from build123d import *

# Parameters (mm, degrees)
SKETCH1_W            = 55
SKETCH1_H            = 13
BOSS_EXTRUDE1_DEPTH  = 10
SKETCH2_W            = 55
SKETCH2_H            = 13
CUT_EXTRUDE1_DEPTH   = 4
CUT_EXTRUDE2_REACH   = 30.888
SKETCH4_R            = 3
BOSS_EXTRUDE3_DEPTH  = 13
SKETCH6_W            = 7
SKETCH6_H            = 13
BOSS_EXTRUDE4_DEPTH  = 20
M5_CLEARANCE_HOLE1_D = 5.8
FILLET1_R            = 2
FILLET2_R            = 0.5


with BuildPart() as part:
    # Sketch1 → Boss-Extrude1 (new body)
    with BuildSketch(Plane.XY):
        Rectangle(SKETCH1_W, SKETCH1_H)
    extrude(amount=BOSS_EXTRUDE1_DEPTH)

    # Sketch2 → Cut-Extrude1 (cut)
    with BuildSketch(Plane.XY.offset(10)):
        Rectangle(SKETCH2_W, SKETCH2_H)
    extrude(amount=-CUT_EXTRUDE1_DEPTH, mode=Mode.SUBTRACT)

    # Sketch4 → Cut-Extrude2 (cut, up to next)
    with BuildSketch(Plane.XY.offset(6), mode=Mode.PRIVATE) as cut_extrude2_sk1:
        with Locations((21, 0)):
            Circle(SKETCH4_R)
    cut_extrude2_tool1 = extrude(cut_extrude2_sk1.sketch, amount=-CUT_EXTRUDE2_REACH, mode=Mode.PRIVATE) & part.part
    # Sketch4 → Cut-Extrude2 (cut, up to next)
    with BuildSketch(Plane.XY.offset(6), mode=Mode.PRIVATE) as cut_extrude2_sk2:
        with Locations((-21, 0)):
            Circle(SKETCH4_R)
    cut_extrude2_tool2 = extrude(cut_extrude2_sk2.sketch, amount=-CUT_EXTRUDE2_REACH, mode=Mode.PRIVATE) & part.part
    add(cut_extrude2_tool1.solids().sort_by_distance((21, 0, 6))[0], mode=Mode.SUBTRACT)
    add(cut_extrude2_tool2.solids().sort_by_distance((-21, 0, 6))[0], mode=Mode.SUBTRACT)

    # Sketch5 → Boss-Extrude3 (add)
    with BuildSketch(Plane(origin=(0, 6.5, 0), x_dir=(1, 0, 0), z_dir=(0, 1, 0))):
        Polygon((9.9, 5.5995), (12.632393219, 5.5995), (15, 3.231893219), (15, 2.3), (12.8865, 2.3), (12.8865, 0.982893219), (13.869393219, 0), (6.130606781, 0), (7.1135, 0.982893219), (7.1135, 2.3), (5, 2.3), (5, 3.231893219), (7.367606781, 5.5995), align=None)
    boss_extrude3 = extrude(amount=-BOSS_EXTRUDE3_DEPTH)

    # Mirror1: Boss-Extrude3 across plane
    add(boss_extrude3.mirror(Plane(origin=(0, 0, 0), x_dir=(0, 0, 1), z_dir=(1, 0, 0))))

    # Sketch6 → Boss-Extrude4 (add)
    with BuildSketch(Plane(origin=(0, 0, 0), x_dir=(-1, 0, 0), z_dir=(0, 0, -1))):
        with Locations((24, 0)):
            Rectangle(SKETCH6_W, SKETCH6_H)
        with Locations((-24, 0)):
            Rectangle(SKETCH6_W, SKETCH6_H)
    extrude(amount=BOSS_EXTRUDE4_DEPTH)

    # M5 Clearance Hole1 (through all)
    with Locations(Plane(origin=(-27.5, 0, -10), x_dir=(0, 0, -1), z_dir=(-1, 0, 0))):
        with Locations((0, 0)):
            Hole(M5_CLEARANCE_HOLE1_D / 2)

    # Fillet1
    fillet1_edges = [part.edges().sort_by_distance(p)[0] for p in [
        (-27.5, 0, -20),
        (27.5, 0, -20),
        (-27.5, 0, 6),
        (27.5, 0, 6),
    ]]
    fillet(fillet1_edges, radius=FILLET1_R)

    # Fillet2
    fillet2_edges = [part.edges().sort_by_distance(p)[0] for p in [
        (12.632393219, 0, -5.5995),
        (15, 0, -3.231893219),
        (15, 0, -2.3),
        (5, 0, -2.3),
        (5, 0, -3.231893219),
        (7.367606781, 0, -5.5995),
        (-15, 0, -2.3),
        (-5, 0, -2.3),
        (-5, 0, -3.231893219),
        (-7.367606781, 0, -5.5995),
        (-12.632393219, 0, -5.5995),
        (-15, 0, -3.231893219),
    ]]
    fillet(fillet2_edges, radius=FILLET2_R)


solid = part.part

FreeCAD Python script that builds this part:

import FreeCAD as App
import Part
import Sketcher
from FreeCAD import Vector
Q = App.Units.Quantity


def edges_at(feature, points):
    """Names of the edges that pass closest to the given points."""
    edges = feature.Shape.Edges
    near = lambda p: min(range(len(edges)), key=lambda i: edges[i].distToShape(Part.Vertex(*p))[0])
    return sorted({f"Edge{near(p) + 1}" for p in points})


def add_polygon(sketch, points):
    """Adds a closed chain of lines whose ends are joined by coincident constraints."""
    first, n = sketch.GeometryCount, len(points)
    for a, b in zip(points, points[1:] + points[:1]):
        sketch.addGeometry(Part.LineSegment(App.Vector(*a, 0), App.Vector(*b, 0)), False)
    for i in range(n):
        sketch.addConstraint(Sketcher.Constraint("Coincident", first + i, 2, first + (i + 1) % n, 1))

doc = App.newDocument("Part")
body = doc.addObject("PartDesign::Body", "Body")

# Sketch on XY plane
sketch1 = body.newObject("Sketcher::SketchObject", "Sketch")
sketch1.AttachmentSupport = (doc.getObject("XY_Plane"), [""])
sketch1.MapMode = "FlatFace"
add_polygon(sketch1, [(-27.5, 6.5), (-27.5, -6.5), (27.5, -6.5), (27.5, 6.5)])  # lines 0-3
sketch1.addConstraint(Sketcher.Constraint("Vertical", 0))
sketch1.addConstraint(Sketcher.Constraint("Horizontal", 1))
sketch1.addConstraint(Sketcher.Constraint("Vertical", 2))
sketch1.addConstraint(Sketcher.Constraint("Horizontal", 3))
sketch1.addConstraint(Sketcher.Constraint("Symmetric", 0, 2, 2, 2, -1, 1))
sketch1.addConstraint(Sketcher.Constraint("DistanceX", 1, 1, 1, 2, Q("55 mm")))
sketch1.addConstraint(Sketcher.Constraint("DistanceY", 0, 2, 0, 1, Q("13 mm")))
pad1 = body.newObject("PartDesign::Pad", "Pad")
pad1.Profile = sketch1
pad1.Length = 10

# Sketch on XY plane
sketch2 = body.newObject("Sketcher::SketchObject", "Sketch001")
sketch2.AttachmentSupport = (doc.getObject("XY_Plane"), [""])
sketch2.MapMode = "FlatFace"
sketch2.AttachmentOffset = App.Placement(Vector(0, 0, 10), App.Rotation())
add_polygon(sketch2, [(-27.5, 6.5), (-27.5, -6.5), (27.5, -6.5), (27.5, 6.5)])  # lines 0-3
sketch2.addConstraint(Sketcher.Constraint("Vertical", 0))
sketch2.addConstraint(Sketcher.Constraint("Horizontal", 1))
sketch2.addConstraint(Sketcher.Constraint("Vertical", 2))
sketch2.addConstraint(Sketcher.Constraint("Horizontal", 3))
sketch2.addConstraint(Sketcher.Constraint("Symmetric", 0, 2, 2, 2, -1, 1))
sketch2.addConstraint(Sketcher.Constraint("DistanceX", 1, 1, 1, 2, Q("55 mm")))
sketch2.addConstraint(Sketcher.Constraint("DistanceY", 0, 2, 0, 1, Q("13 mm")))
pocket1 = body.newObject("PartDesign::Pocket", "Pocket")
pocket1.Profile = sketch2
pocket1.Length = 4

# Sketch on XY plane
sketch3 = body.newObject("Sketcher::SketchObject", "Sketch002")
sketch3.AttachmentSupport = (doc.getObject("XY_Plane"), [""])
sketch3.MapMode = "FlatFace"
sketch3.AttachmentOffset = App.Placement(Vector(0, 0, 6), App.Rotation())
sketch3.addGeometry(Part.Circle(Vector(21, 0, 0), Vector(0, 0, 1), 3), False)
sketch3.addConstraint(Sketcher.Constraint("PointOnObject", 0, 3, -1))
sketch3.addConstraint(Sketcher.Constraint("Diameter", 0, Q("6 mm")))
sketch3.addConstraint(Sketcher.Constraint("DistanceX", -1, 1, 0, 3, Q("21 mm")))
pocket2 = body.newObject("PartDesign::Pocket", "Pocket001")
pocket2.Profile = sketch3
pocket2.Type = "UpToFirst"

# Sketch on XY plane
sketch4 = body.newObject("Sketcher::SketchObject", "Sketch003")
sketch4.AttachmentSupport = (doc.getObject("XY_Plane"), [""])
sketch4.MapMode = "FlatFace"
sketch4.AttachmentOffset = App.Placement(Vector(0, 0, 6), App.Rotation())
sketch4.addGeometry(Part.Circle(Vector(-21, 0, 0), Vector(0, 0, 1), 3), False)
sketch4.addConstraint(Sketcher.Constraint("PointOnObject", 0, 3, -1))
sketch4.addConstraint(Sketcher.Constraint("Diameter", 0, Q("6 mm")))
sketch4.addConstraint(Sketcher.Constraint("DistanceX", 0, 3, -1, 1, Q("21 mm")))
pocket3 = body.newObject("PartDesign::Pocket", "Pocket002")
pocket3.Profile = sketch4
pocket3.Type = "UpToFirst"

# Sketch on XZ plane
sketch5 = body.newObject("Sketcher::SketchObject", "Sketch004")
sketch5.AttachmentSupport = (doc.getObject("XZ_Plane"), [""])
sketch5.MapMode = "FlatFace"
sketch5.AttachmentOffset = App.Placement(Vector(0, 0, -6.5), App.Rotation())
add_polygon(sketch5, [(12.632393, -5.5995), (7.367607, -5.5995), (5, -3.231893), (5, -2.3), (7.1135, -2.3), (7.1135, -0.982893), (6.130607, 0), (13.869393, 0), (12.8865, -0.982893), (12.8865, -2.3), (15, -2.3), (15, -3.231893)])  # lines 0-11
sketch5.addConstraint(Sketcher.Constraint("Horizontal", 0))
sketch5.addConstraint(Sketcher.Constraint("Vertical", 2))
sketch5.addConstraint(Sketcher.Constraint("Horizontal", 3))
sketch5.addConstraint(Sketcher.Constraint("Vertical", 4))
sketch5.addConstraint(Sketcher.Constraint("Horizontal", 6))
sketch5.addConstraint(Sketcher.Constraint("Vertical", 8))
sketch5.addConstraint(Sketcher.Constraint("Horizontal", 9))
sketch5.addConstraint(Sketcher.Constraint("Vertical", 10))
sketch5.addConstraint(Sketcher.Constraint("PointOnObject", 5, 2, -1))
sketch5.addConstraint(Sketcher.Constraint("Parallel", 1, 5))
sketch5.addConstraint(Sketcher.Constraint("Perpendicular", 5, 7))
sketch5.addConstraint(Sketcher.Constraint("Parallel", 7, 11))
sketch5.addConstraint(Sketcher.Constraint("Horizontal", 4, 2, 7, 2))
sketch5.addConstraint(Sketcher.Constraint("Horizontal", 3, 2, 8, 2))
sketch5.addConstraint(Sketcher.Constraint("Horizontal", 1, 2, 10, 2))
sketch5.addConstraint(Sketcher.Constraint("Equal", 3, 9))
sketch5.addConstraint(Sketcher.Constraint("Equal", 5, 7))
sketch5.addConstraint(Sketcher.Constraint("DistanceX", -1, 1, 1, 2, Q("5 mm")))
sketch5.addConstraint(Sketcher.Constraint("DistanceX", -1, 1, 9, 2, Q("15 mm")))
sketch5.addConstraint(Sketcher.Constraint("DistanceY", 2, 2, -1, 1, Q("2.3 mm")))
sketch5.addConstraint(Sketcher.Constraint("DistanceX", 3, 1, 3, 2, Q("2.1135 mm")))
sketch5.addConstraint(Sketcher.Constraint("DistanceY", 1, 2, 4, 2, Q("2.249 mm")))
sketch5.addConstraint(Sketcher.Constraint("DistanceX", 5, 2, 0, 2, Q("1.237 mm")))
sketch5.addConstraint(Sketcher.Constraint("Distance", 1, Q("3.348302 mm")))
pad2 = body.newObject("PartDesign::Pad", "Pad001")
pad2.Profile = sketch5
pad2.Length = 13
doc.recompute()

mirrored = body.newObject("PartDesign::Mirrored", "Mirrored")
mirrored.Originals = [pad2]
mirrored.MirrorPlane = (doc.getObject("YZ_Plane"), [""])
body.Tip = mirrored

# Sketch on XY plane
sketch6 = body.newObject("Sketcher::SketchObject", "Sketch005")
sketch6.AttachmentSupport = (doc.getObject("XY_Plane"), [""])
sketch6.MapMode = "FlatFace"
add_polygon(sketch6, [(-20.5, 6.5), (-20.5, -6.5), (-27.5, -6.5), (-27.5, 6.5)])  # lines 0-3
add_polygon(sketch6, [(27.5, 6.5), (27.5, -6.5), (20.5, -6.5), (20.5, 6.5)])  # lines 4-7
sketch6.addConstraint(Sketcher.Constraint("Vertical", 0))
sketch6.addConstraint(Sketcher.Constraint("Horizontal", 1))
sketch6.addConstraint(Sketcher.Constraint("Vertical", 2))
sketch6.addConstraint(Sketcher.Constraint("Horizontal", 3))
sketch6.addConstraint(Sketcher.Constraint("Vertical", 4))
sketch6.addConstraint(Sketcher.Constraint("Horizontal", 5))
sketch6.addConstraint(Sketcher.Constraint("Vertical", 6))
sketch6.addConstraint(Sketcher.Constraint("Horizontal", 7))
sketch6.addConstraint(Sketcher.Constraint("Symmetric", 2, 2, 4, 2, -1, 1))
sketch6.addConstraint(Sketcher.Constraint("Symmetric", 0, 2, 6, 2, -1, 1))
sketch6.addConstraint(Sketcher.Constraint("Horizontal", 1, 2, 4, 2))
sketch6.addConstraint(Sketcher.Constraint("DistanceX", 1, 2, 1, 1, Q("7 mm")))
sketch6.addConstraint(Sketcher.Constraint("DistanceY", 0, 2, 0, 1, Q("13 mm")))
sketch6.addConstraint(Sketcher.Constraint("DistanceX", 0, 2, 4, 2, Q("48 mm")))
pad3 = body.newObject("PartDesign::Pad", "Pad002")
pad3.Profile = sketch6
pad3.Length = 20
pad3.Reversed = True

# Sketch on YZ plane
sketch7 = body.newObject("Sketcher::SketchObject", "Sketch006")
sketch7.AttachmentSupport = (doc.getObject("YZ_Plane"), [""])
sketch7.MapMode = "FlatFace"
sketch7.AttachmentOffset = App.Placement(Vector(0, 0, -27.5), App.Rotation())
sketch7.addGeometry(Part.Circle(Vector(0, -10, 0), Vector(0, 0, 1), 2.9), False)
sketch7.addConstraint(Sketcher.Constraint("PointOnObject", 0, 3, -2))
sketch7.addConstraint(Sketcher.Constraint("Diameter", 0, Q("5.8 mm")))
sketch7.addConstraint(Sketcher.Constraint("DistanceY", 0, 3, -1, 1, Q("10 mm")))
doc.recompute()
hole = body.newObject("PartDesign::Hole", "Hole")
hole.Profile = sketch7
hole.ThreadType = "None"
hole.Diameter = 5.8
hole.DepthType = "ThroughAll"
hole.Reversed = True
doc.recompute()

fillet = body.newObject("PartDesign::Fillet", "Fillet")
fillet.Base = (hole, edges_at(hole, [
    (-27.5, 0, -20),
    (27.5, 0, -20),
    (-27.5, 0, 6),
    (27.5, 0, 6),
]))
fillet.Radius = 2
doc.recompute()

fillet2 = body.newObject("PartDesign::Fillet", "Fillet001")
fillet2.Base = (fillet, edges_at(fillet, [
    (12.632, 0, -5.599),
    (15, 0, -3.232),
    (15, 0, -2.3),
    (5, 0, -2.3),
    (5, 0, -3.232),
    (7.368, 0, -5.599),
    (-15, 0, -2.3),
    (-5, 0, -2.3),
    (-5, 0, -3.232),
    (-7.368, 0, -5.599),
    (-12.632, 0, -5.599),
    (-15, 0, -3.232),
]))
fillet2.Radius = 0.5

doc.recompute()
